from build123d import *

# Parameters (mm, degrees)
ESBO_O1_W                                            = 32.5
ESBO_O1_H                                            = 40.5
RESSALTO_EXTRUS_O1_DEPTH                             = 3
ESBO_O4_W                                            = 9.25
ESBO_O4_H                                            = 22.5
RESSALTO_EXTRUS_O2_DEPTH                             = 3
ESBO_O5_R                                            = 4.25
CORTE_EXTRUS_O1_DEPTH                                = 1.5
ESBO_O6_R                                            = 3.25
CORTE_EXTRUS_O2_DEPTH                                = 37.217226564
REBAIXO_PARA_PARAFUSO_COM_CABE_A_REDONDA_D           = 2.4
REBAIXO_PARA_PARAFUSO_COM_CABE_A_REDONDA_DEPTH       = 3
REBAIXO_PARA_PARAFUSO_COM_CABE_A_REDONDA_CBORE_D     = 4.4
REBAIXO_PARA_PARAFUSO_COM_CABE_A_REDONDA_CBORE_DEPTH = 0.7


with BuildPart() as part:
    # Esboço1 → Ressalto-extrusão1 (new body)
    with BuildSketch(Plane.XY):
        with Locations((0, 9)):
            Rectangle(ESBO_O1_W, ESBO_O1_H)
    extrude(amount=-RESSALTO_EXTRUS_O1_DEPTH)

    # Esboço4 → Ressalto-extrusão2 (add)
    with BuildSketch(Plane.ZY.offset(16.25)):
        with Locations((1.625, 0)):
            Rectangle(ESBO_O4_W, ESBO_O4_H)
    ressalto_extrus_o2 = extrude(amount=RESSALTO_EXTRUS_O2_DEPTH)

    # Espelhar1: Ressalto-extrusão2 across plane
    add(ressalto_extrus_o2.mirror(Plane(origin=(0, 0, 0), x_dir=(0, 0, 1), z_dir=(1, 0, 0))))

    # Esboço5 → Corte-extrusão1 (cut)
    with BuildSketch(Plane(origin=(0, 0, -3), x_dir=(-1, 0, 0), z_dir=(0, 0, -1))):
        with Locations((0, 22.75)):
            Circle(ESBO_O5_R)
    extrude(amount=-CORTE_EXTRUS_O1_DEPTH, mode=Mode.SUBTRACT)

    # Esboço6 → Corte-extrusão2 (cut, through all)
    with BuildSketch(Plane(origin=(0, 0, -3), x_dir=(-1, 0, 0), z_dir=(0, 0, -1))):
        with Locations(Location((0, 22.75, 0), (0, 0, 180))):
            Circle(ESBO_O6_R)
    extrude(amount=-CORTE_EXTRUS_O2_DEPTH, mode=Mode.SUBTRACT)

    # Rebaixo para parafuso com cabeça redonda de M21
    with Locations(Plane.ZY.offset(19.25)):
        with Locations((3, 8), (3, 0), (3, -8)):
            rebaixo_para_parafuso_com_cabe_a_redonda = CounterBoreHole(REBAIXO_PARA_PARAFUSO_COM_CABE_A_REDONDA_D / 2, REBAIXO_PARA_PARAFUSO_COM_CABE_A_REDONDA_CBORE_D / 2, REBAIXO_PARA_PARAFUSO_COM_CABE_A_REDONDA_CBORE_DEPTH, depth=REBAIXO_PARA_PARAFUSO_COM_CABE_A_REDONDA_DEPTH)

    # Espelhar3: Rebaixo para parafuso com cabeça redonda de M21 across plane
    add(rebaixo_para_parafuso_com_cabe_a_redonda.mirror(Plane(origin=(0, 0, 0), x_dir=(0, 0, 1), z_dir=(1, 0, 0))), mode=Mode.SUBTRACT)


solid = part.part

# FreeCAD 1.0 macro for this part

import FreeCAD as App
import Part
import Sketcher
from FreeCAD import Vector

doc = App.newDocument("Part")
body = doc.addObject("PartDesign::Body", "Body")

sketch1 = doc.addObject("Sketcher::SketchObject", "Sketch")
body.addObject(sketch1)
sketch1.AttachmentSupport = (doc.XY_Plane, [""])
sketch1.MapMode = "FlatFace"
sketch1.addGeometry([
    Part.LineSegment(Vector(-16, 29, 0), Vector(-16, -11, 0)),
    Part.LineSegment(Vector(-16, -11, 0), Vector(16, -11, 0)),
    Part.LineSegment(Vector(16, -11, 0), Vector(16, 29, 0)),
    Part.LineSegment(Vector(16, 29, 0), Vector(-16, 29, 0)),
], False)
sketch1.addConstraint([
    Sketcher.Constraint("Coincident", 0, 2, 1, 1),
    Sketcher.Constraint("Coincident", 1, 2, 2, 1),
    Sketcher.Constraint("Coincident", 2, 2, 3, 1),
    Sketcher.Constraint("Coincident", 3, 2, 0, 1),
    Sketcher.Constraint("Vertical", 0),
    Sketcher.Constraint("Horizontal", 1),
    Sketcher.Constraint("Vertical", 2),
    Sketcher.Constraint("Horizontal", 3),
    Sketcher.Constraint("DistanceX", 1, 1, 1, 2, 32.5),
    Sketcher.Constraint("DistanceY", 0, 2, 0, 1, 40.5),
    Sketcher.Constraint("DistanceX", 0, 2, -1, 1, 16.25),
    Sketcher.Constraint("DistanceY", 0, 2, -1, 1, 11.25),
])
pad1 = doc.addObject("PartDesign::Pad", "Pad")
body.addObject(pad1)
pad1.Profile = sketch1
pad1.Length = 3
pad1.Reversed = True

sketch2 = doc.addObject("Sketcher::SketchObject", "Sketch001")
body.addObject(sketch2)
sketch2.AttachmentSupport = (doc.YZ_Plane, [""])
sketch2.MapMode = "FlatFace"
sketch2.AttachmentOffset = App.Placement(Vector(0, 0, -16.25), App.Rotation())
sketch2.addGeometry([
    Part.LineSegment(Vector(11, -3, 0), Vector(-11, -3, 0)),
    Part.LineSegment(Vector(-11, -3, 0), Vector(-11, 6, 0)),
    Part.LineSegment(Vector(-11, 6, 0), Vector(11, 6, 0)),
    Part.LineSegment(Vector(11, 6, 0), Vector(11, -3, 0)),
], False)
sketch2.addConstraint([
    Sketcher.Constraint("Coincident", 0, 2, 1, 1),
    Sketcher.Constraint("Coincident", 1, 2, 2, 1),
    Sketcher.Constraint("Coincident", 2, 2, 3, 1),
    Sketcher.Constraint("Coincident", 3, 2, 0, 1),
    Sketcher.Constraint("Horizontal", 0),
    Sketcher.Constraint("Vertical", 1),
    Sketcher.Constraint("Horizontal", 2),
    Sketcher.Constraint("Vertical", 3),
    Sketcher.Constraint("DistanceX", 0, 2, 0, 1, 22.5),
    Sketcher.Constraint("DistanceY", 0, 2, -1, 1, 3.0),
    Sketcher.Constraint("DistanceY", 1, 1, 1, 2, 9.25),
    Sketcher.Constraint("DistanceX", 0, 2, -1, 1, 11.25),
])
pad2 = doc.addObject("PartDesign::Pad", "Pad001")
body.addObject(pad2)
pad2.Profile = sketch2
pad2.Length = 3
pad2.Reversed = True
doc.recompute()

mirrored = doc.addObject("PartDesign::Mirrored", "Mirrored")
body.addObject(mirrored)
mirrored.Originals = [pad2]
mirrored.MirrorPlane = (doc.YZ_Plane, [""])
body.Tip = mirrored

sketch3 = doc.addObject("Sketcher::SketchObject", "Sketch002")
body.addObject(sketch3)
sketch3.AttachmentSupport = (doc.XY_Plane, [""])
sketch3.MapMode = "FlatFace"
sketch3.AttachmentOffset = App.Placement(Vector(0, 0, -3), App.Rotation())
sketch3.addGeometry(Part.Circle(Vector(0, 22.8, 0), Vector(0, 0, 1), 4.2), False)
sketch3.addConstraint([
    Sketcher.Constraint("PointOnObject", 0, 3, -2),
    Sketcher.Constraint("Diameter", 0, 8.5),
    Sketcher.Constraint("DistanceY", -1, 1, 0, 3, 22.75),
])
pocket1 = doc.addObject("PartDesign::Pocket", "Pocket")
body.addObject(pocket1)
pocket1.Profile = sketch3
pocket1.Length = 1.5
pocket1.Reversed = True

sketch4 = doc.addObject("Sketcher::SketchObject", "Sketch003")
body.addObject(sketch4)
sketch4.AttachmentSupport = (doc.XY_Plane, [""])
sketch4.MapMode = "FlatFace"
sketch4.AttachmentOffset = App.Placement(Vector(0, 0, -3), App.Rotation())
sketch4.addGeometry(Part.Circle(Vector(0, 22.8, 0), Vector(0, 0, 1), 3.2), False)
sketch4.addConstraint([
    Sketcher.Constraint("PointOnObject", 0, 3, -2),
    Sketcher.Constraint("Diameter", 0, 6.5),
    Sketcher.Constraint("DistanceY", -1, 1, 0, 3, 22.75),
])
pocket2 = doc.addObject("PartDesign::Pocket", "Pocket001")
body.addObject(pocket2)
pocket2.Profile = sketch4
pocket2.Type = "ThroughAll"
pocket2.Reversed = True

sketch5 = doc.addObject("Sketcher::SketchObject", "Sketch004")
body.addObject(sketch5)
sketch5.AttachmentSupport = (doc.YZ_Plane, [""])
sketch5.MapMode = "FlatFace"
sketch5.AttachmentOffset = App.Placement(Vector(0, 0, -19.25), App.Rotation())
sketch5.addGeometry([
    Part.Circle(Vector(8, 3, 0), Vector(0, 0, 1), 1.2),
    Part.Circle(Vector(0, 3, 0), Vector(0, 0, 1), 1.2),
    Part.Circle(Vector(-8, 3, 0), Vector(0, 0, 1), 1.2),
], False)
sketch5.addConstraint([
    Sketcher.Constraint("Equal", 0, 1),
    Sketcher.Constraint("Equal", 1, 2),
    Sketcher.Constraint("Symmetric", 0, 3, 2, 3, -2),
    Sketcher.Constraint("PointOnObject", 1, 3, -2),
    Sketcher.Constraint("Horizontal", 0, 3, 1, 3),
    Sketcher.Constraint("Diameter", 0, 2.4),
    Sketcher.Constraint("DistanceX", -1, 1, 0, 3, 8.0),
    Sketcher.Constraint("DistanceY", -1, 1, 0, 3, 3.0),
])
doc.recompute()
hole = doc.addObject("PartDesign::Hole", "Hole")
body.addObject(hole)
hole.Profile = sketch5
hole.ThreadType = "None"
hole.Diameter = 2.4
hole.DepthType = "Dimension"
hole.Depth = 3
hole.DrillPoint = "Flat"
hole.HoleCutType = "Counterbore"
hole.HoleCutDiameter = 4.4
hole.HoleCutDepth = 0.7
hole.Reversed = True
doc.recompute()

mirrored2 = doc.addObject("PartDesign::Mirrored", "Mirrored001")
body.addObject(mirrored2)
mirrored2.Originals = [hole]
mirrored2.MirrorPlane = (doc.YZ_Plane, [""])
body.Tip = mirrored2

doc.recompute()
